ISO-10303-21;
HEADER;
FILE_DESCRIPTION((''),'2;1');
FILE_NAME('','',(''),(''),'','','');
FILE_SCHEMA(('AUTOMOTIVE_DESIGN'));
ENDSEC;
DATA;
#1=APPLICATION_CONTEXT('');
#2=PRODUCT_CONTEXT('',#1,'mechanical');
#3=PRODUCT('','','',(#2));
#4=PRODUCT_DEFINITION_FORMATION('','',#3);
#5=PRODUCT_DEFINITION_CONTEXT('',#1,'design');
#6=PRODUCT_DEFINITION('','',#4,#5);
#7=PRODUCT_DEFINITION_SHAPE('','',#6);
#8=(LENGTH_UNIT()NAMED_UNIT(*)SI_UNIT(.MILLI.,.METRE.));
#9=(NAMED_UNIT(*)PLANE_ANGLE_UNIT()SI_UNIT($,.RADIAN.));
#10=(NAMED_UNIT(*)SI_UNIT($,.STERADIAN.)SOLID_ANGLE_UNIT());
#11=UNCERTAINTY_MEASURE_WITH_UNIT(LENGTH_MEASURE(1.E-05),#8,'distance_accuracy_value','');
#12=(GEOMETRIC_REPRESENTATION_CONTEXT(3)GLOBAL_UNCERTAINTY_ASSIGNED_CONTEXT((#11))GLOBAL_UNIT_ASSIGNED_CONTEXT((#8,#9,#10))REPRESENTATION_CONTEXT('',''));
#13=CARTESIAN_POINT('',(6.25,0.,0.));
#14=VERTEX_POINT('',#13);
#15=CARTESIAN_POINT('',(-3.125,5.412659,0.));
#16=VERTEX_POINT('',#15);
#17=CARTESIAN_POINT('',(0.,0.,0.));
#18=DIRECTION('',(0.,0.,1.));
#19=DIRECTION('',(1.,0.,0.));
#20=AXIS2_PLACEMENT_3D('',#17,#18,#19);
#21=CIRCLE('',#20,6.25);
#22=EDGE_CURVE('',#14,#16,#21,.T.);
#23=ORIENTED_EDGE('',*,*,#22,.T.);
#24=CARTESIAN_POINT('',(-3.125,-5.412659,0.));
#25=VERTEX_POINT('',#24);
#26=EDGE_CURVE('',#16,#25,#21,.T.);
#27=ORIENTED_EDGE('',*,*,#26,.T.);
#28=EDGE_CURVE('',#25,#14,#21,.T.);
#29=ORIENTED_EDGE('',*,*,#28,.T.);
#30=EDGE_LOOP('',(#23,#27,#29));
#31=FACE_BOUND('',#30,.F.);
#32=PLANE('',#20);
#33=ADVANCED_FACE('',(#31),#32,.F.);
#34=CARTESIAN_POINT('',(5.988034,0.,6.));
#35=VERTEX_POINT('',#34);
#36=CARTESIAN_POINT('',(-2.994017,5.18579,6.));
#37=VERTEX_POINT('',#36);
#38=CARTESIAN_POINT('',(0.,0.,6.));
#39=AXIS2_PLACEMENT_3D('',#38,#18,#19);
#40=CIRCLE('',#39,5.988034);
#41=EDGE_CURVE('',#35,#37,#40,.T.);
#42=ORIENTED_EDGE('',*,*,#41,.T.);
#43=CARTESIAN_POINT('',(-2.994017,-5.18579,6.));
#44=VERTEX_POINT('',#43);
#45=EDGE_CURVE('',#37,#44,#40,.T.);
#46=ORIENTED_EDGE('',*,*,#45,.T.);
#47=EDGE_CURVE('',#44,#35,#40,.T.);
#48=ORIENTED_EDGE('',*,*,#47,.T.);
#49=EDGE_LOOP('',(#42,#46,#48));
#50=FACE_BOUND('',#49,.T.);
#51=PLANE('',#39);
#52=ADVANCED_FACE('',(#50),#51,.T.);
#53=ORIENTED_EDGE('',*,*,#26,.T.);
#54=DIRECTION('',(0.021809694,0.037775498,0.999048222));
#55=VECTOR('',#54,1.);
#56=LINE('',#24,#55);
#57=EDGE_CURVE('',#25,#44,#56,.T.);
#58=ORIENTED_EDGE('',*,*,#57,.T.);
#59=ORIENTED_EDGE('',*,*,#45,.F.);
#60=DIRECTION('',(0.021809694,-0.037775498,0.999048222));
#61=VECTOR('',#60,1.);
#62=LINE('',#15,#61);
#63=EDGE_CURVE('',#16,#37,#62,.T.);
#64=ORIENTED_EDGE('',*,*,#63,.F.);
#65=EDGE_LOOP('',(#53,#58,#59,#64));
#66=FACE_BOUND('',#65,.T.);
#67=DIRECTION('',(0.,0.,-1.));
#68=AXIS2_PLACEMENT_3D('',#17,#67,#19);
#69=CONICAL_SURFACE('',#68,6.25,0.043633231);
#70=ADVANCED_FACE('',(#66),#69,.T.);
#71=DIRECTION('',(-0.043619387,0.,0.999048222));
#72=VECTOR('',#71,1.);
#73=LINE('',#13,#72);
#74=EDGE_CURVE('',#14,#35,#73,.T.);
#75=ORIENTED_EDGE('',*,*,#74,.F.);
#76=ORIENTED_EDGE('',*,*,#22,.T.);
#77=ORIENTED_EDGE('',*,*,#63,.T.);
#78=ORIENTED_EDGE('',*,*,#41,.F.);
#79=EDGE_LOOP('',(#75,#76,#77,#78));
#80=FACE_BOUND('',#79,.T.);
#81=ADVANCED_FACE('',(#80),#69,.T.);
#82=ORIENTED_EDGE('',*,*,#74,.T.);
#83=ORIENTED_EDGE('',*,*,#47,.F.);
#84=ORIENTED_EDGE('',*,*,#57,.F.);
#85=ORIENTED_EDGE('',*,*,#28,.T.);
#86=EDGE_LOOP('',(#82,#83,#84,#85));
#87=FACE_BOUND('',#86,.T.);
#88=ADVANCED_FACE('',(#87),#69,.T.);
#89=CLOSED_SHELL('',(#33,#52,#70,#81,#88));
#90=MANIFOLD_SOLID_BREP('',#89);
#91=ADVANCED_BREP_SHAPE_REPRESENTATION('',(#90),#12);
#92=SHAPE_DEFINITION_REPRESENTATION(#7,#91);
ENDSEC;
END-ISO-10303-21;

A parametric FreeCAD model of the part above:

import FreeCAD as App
import Part
import Sketcher

V = App.Vector
Q = App.Units.Quantity

doc = App.newDocument("Part")
params = doc.addObject("Spreadsheet::Sheet", "Params")
for row, (alias, value) in enumerate([
    ("sketch1_diameter", "12.5 mm"),
    ("pad1_length", "6 mm"),
    ("pad1_taper", "-2.5 deg"),
], start=1):
    params.set(f"A{row}", alias)
    params.set(f"B{row}", "=" + value)
    params.setAlias(f"B{row}", alias)

body = doc.addObject("PartDesign::Body", "Body")

sketch1 = body.newObject("Sketcher::SketchObject", "Sketch")
sketch1.AttachmentSupport = (doc.getObject("XY_Plane"), [""])
sketch1.MapMode = "FlatFace"
sketch1.addGeometry(Part.Circle(V(0, 0, 0), V(0, 0, 1), 6.25), False)
sketch1.addConstraint(Sketcher.Constraint("Coincident", 0, 3, -1, 1))
sketch1.addConstraint(Sketcher.Constraint("Diameter", 0, Q("12.5 mm")))
sketch1.setExpression("Constraints[1]", "Params.sketch1_diameter")
pad1 = body.newObject("PartDesign::Pad", "Pad")
pad1.Profile = sketch1
pad1.setExpression("Length", "Params.pad1_length")
pad1.setExpression("TaperAngle", "Params.pad1_taper")

doc.recompute()
